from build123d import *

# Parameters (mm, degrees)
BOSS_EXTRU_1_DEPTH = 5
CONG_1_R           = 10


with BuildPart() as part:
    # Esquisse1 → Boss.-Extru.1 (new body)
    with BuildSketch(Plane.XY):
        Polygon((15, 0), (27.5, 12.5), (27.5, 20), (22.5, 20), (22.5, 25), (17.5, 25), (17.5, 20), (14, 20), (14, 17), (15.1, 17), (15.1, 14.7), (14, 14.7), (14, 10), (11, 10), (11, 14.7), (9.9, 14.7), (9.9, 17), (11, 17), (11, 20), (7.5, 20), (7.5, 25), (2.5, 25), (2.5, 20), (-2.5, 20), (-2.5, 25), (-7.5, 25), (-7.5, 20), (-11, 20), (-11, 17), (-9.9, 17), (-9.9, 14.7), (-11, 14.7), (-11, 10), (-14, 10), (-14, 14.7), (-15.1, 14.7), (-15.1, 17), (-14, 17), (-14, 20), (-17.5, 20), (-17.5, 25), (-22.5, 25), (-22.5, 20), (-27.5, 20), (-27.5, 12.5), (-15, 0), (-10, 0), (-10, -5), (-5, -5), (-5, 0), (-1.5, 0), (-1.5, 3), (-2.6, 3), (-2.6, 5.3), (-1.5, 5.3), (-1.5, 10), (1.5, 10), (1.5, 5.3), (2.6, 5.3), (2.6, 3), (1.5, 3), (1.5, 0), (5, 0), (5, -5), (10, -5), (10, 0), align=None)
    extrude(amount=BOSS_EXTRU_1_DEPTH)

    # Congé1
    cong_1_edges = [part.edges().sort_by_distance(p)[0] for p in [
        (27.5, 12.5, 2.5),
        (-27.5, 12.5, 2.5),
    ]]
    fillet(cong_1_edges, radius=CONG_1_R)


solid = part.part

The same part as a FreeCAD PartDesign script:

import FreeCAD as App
import Part
import Sketcher
Q = App.Units.Quantity


def edges_at(feature, points):
    """Names of the edges that pass closest to the given points."""
    edges = feature.Shape.Edges
    near = lambda p: min(range(len(edges)), key=lambda i: edges[i].distToShape(Part.Vertex(*p))[0])
    return sorted({f"Edge{near(p) + 1}" for p in points})

doc = App.newDocument("Part")
body = doc.addObject("PartDesign::Body", "Body")

sketch1 = doc.addObject("Sketcher::SketchObject", "Sketch")
body.addObject(sketch1)
sketch1.AttachmentSupport = (doc.XY_Plane, [""])
sketch1.MapMode = "FlatFace"
sketch1.addGeometry([
    Part.LineSegment(App.Vector(15, 0, 0), App.Vector(27.5, 12.5, 0)),
    Part.LineSegment(App.Vector(27.5, 12.5, 0), App.Vector(27.5, 20, 0)),
    Part.LineSegment(App.Vector(27.5, 20, 0), App.Vector(22.5, 20, 0)),
    Part.LineSegment(App.Vector(22.5, 20, 0), App.Vector(22.5, 25, 0)),
    Part.LineSegment(App.Vector(22.5, 25, 0), App.Vector(17.5, 25, 0)),
    Part.LineSegment(App.Vector(17.5, 25, 0), App.Vector(17.5, 20, 0)),
    Part.LineSegment(App.Vector(17.5, 20, 0), App.Vector(14, 20, 0)),
    Part.LineSegment(App.Vector(14, 20, 0), App.Vector(14, 17, 0)),
    Part.LineSegment(App.Vector(14, 17, 0), App.Vector(15.1, 17, 0)),
    Part.LineSegment(App.Vector(15.1, 17, 0), App.Vector(15.1, 14.7, 0)),
    Part.LineSegment(App.Vector(15.1, 14.7, 0), App.Vector(14, 14.7, 0)),
    Part.LineSegment(App.Vector(14, 14.7, 0), App.Vector(14, 10, 0)),
    Part.LineSegment(App.Vector(14, 10, 0), App.Vector(11, 10, 0)),
    Part.LineSegment(App.Vector(11, 10, 0), App.Vector(11, 14.7, 0)),
    Part.LineSegment(App.Vector(11, 14.7, 0), App.Vector(9.9, 14.7, 0)),
    Part.LineSegment(App.Vector(9.9, 14.7, 0), App.Vector(9.9, 17, 0)),
    Part.LineSegment(App.Vector(9.9, 17, 0), App.Vector(11, 17, 0)),
    Part.LineSegment(App.Vector(11, 17, 0), App.Vector(11, 20, 0)),
    Part.LineSegment(App.Vector(11, 20, 0), App.Vector(7.5, 20, 0)),
    Part.LineSegment(App.Vector(7.5, 20, 0), App.Vector(7.5, 25, 0)),
    Part.LineSegment(App.Vector(7.5, 25, 0), App.Vector(2.5, 25, 0)),
    Part.LineSegment(App.Vector(2.5, 25, 0), App.Vector(2.5, 20, 0)),
    Part.LineSegment(App.Vector(2.5, 20, 0), App.Vector(-2.5, 20, 0)),
    Part.LineSegment(App.Vector(-2.5, 20, 0), App.Vector(-2.5, 25, 0)),
    Part.LineSegment(App.Vector(-2.5, 25, 0), App.Vector(-7.5, 25, 0)),
    Part.LineSegment(App.Vector(-7.5, 25, 0), App.Vector(-7.5, 20, 0)),
    Part.LineSegment(App.Vector(-7.5, 20, 0), App.Vector(-11, 20, 0)),
    Part.LineSegment(App.Vector(-11, 20, 0), App.Vector(-11, 17, 0)),
    Part.LineSegment(App.Vector(-11, 17, 0), App.Vector(-9.9, 17, 0)),
    Part.LineSegment(App.Vector(-9.9, 17, 0), App.Vector(-9.9, 14.7, 0)),
    Part.LineSegment(App.Vector(-9.9, 14.7, 0), App.Vector(-11, 14.7, 0)),
    Part.LineSegment(App.Vector(-11, 14.7, 0), App.Vector(-11, 10, 0)),
    Part.LineSegment(App.Vector(-11, 10, 0), App.Vector(-14, 10, 0)),
    Part.LineSegment(App.Vector(-14, 10, 0), App.Vector(-14, 14.7, 0)),
    Part.LineSegment(App.Vector(-14, 14.7, 0), App.Vector(-15.1, 14.7, 0)),
    Part.LineSegment(App.Vector(-15.1, 14.7, 0), App.Vector(-15.1, 17, 0)),
    Part.LineSegment(App.Vector(-15.1, 17, 0), App.Vector(-14, 17, 0)),
    Part.LineSegment(App.Vector(-14, 17, 0), App.Vector(-14, 20, 0)),
    Part.LineSegment(App.Vector(-14, 20, 0), App.Vector(-17.5, 20, 0)),
    Part.LineSegment(App.Vector(-17.5, 20, 0), App.Vector(-17.5, 25, 0)),
    Part.LineSegment(App.Vector(-17.5, 25, 0), App.Vector(-22.5, 25, 0)),
    Part.LineSegment(App.Vector(-22.5, 25, 0), App.Vector(-22.5, 20, 0)),
    Part.LineSegment(App.Vector(-22.5, 20, 0), App.Vector(-27.5, 20, 0)),
    Part.LineSegment(App.Vector(-27.5, 20, 0), App.Vector(-27.5, 12.5, 0)),
    Part.LineSegment(App.Vector(-27.5, 12.5, 0), App.Vector(-15, 0, 0)),
    Part.LineSegment(App.Vector(-15, 0, 0), App.Vector(-10, 0, 0)),
    Part.LineSegment(App.Vector(-10, 0, 0), App.Vector(-10, -5, 0)),
    Part.LineSegment(App.Vector(-10, -5, 0), App.Vector(-5, -5, 0)),
    Part.LineSegment(App.Vector(-5, -5, 0), App.Vector(-5, 0, 0)),
    Part.LineSegment(App.Vector(-5, 0, 0), App.Vector(-1.5, 0, 0)),
    Part.LineSegment(App.Vector(-1.5, 0, 0), App.Vector(-1.5, 3, 0)),
    Part.LineSegment(App.Vector(-1.5, 3, 0), App.Vector(-2.6, 3, 0)),
    Part.LineSegment(App.Vector(-2.6, 3, 0), App.Vector(-2.6, 5.3, 0)),
    Part.LineSegment(App.Vector(-2.6, 5.3, 0), App.Vector(-1.5, 5.3, 0)),
    Part.LineSegment(App.Vector(-1.5, 5.3, 0), App.Vector(-1.5, 10, 0)),
    Part.LineSegment(App.Vector(-1.5, 10, 0), App.Vector(1.5, 10, 0)),
    Part.LineSegment(App.Vector(1.5, 10, 0), App.Vector(1.5, 5.3, 0)),
    Part.LineSegment(App.Vector(1.5, 5.3, 0), App.Vector(2.6, 5.3, 0)),
    Part.LineSegment(App.Vector(2.6, 5.3, 0), App.Vector(2.6, 3, 0)),
    Part.LineSegment(App.Vector(2.6, 3, 0), App.Vector(1.5, 3, 0)),
    Part.LineSegment(App.Vector(1.5, 3, 0), App.Vector(1.5, 0, 0)),
    Part.LineSegment(App.Vector(1.5, 0, 0), App.Vector(5, 0, 0)),
    Part.LineSegment(App.Vector(5, 0, 0), App.Vector(5, -5, 0)),
    Part.LineSegment(App.Vector(5, -5, 0), App.Vector(10, -5, 0)),
    Part.LineSegment(App.Vector(10, -5, 0), App.Vector(10, 0, 0)),
    Part.LineSegment(App.Vector(10, 0, 0), App.Vector(15, 0, 0)),
], False)
sketch1.addConstraint([
    Sketcher.Constraint("Coincident", 0, 2, 1, 1),
    Sketcher.Constraint("Coincident", 1, 2, 2, 1),
    Sketcher.Constraint("Coincident", 2, 2, 3, 1),
    Sketcher.Constraint("Coincident", 3, 2, 4, 1),
    Sketcher.Constraint("Coincident", 4, 2, 5, 1),
    Sketcher.Constraint("Coincident", 5, 2, 6, 1),
    Sketcher.Constraint("Coincident", 6, 2, 7, 1),
    Sketcher.Constraint("Coincident", 7, 2, 8, 1),
    Sketcher.Constraint("Coincident", 8, 2, 9, 1),
    Sketcher.Constraint("Coincident", 9, 2, 10, 1),
    Sketcher.Constraint("Coincident", 10, 2, 11, 1),
    Sketcher.Constraint("Coincident", 11, 2, 12, 1),
    Sketcher.Constraint("Coincident", 12, 2, 13, 1),
    Sketcher.Constraint("Coincident", 13, 2, 14, 1),
    Sketcher.Constraint("Coincident", 14, 2, 15, 1),
    Sketcher.Constraint("Coincident", 15, 2, 16, 1),
    Sketcher.Constraint("Coincident", 16, 2, 17, 1),
    Sketcher.Constraint("Coincident", 17, 2, 18, 1),
    Sketcher.Constraint("Coincident", 18, 2, 19, 1),
    Sketcher.Constraint("Coincident", 19, 2, 20, 1),
    Sketcher.Constraint("Coincident", 20, 2, 21, 1),
    Sketcher.Constraint("Coincident", 21, 2, 22, 1),
    Sketcher.Constraint("Coincident", 22, 2, 23, 1),
    Sketcher.Constraint("Coincident", 23, 2, 24, 1),
    Sketcher.Constraint("Coincident", 24, 2, 25, 1),
    Sketcher.Constraint("Coincident", 25, 2, 26, 1),
    Sketcher.Constraint("Coincident", 26, 2, 27, 1),
    Sketcher.Constraint("Coincident", 27, 2, 28, 1),
    Sketcher.Constraint("Coincident", 28, 2, 29, 1),
    Sketcher.Constraint("Coincident", 29, 2, 30, 1),
    Sketcher.Constraint("Coincident", 30, 2, 31, 1),
    Sketcher.Constraint("Coincident", 31, 2, 32, 1),
    Sketcher.Constraint("Coincident", 32, 2, 33, 1),
    Sketcher.Constraint("Coincident", 33, 2, 34, 1),
    Sketcher.Constraint("Coincident", 34, 2, 35, 1),
    Sketcher.Constraint("Coincident", 35, 2, 36, 1),
    Sketcher.Constraint("Coincident", 36, 2, 37, 1),
    Sketcher.Constraint("Coincident", 37, 2, 38, 1),
    Sketcher.Constraint("Coincident", 38, 2, 39, 1),
    Sketcher.Constraint("Coincident", 39, 2, 40, 1),
    Sketcher.Constraint("Coincident", 40, 2, 41, 1),
    Sketcher.Constraint("Coincident", 41, 2, 42, 1),
    Sketcher.Constraint("Coincident", 42, 2, 43, 1),
    Sketcher.Constraint("Coincident", 43, 2, 44, 1),
    Sketcher.Constraint("Coincident", 44, 2, 45, 1),
    Sketcher.Constraint("Coincident", 45, 2, 46, 1),
    Sketcher.Constraint("Coincident", 46, 2, 47, 1),
    Sketcher.Constraint("Coincident", 47, 2, 48, 1),
    Sketcher.Constraint("Coincident", 48, 2, 49, 1),
    Sketcher.Constraint("Coincident", 49, 2, 50, 1),
    Sketcher.Constraint("Coincident", 50, 2, 51, 1),
    Sketcher.Constraint("Coincident", 51, 2, 52, 1),
    Sketcher.Constraint("Coincident", 52, 2, 53, 1),
    Sketcher.Constraint("Coincident", 53, 2, 54, 1),
    Sketcher.Constraint("Coincident", 54, 2, 55, 1),
    Sketcher.Constraint("Coincident", 55, 2, 56, 1),
    Sketcher.Constraint("Coincident", 56, 2, 57, 1),
    Sketcher.Constraint("Coincident", 57, 2, 58, 1),
    Sketcher.Constraint("Coincident", 58, 2, 59, 1),
    Sketcher.Constraint("Coincident", 59, 2, 60, 1),
    Sketcher.Constraint("Coincident", 60, 2, 61, 1),
    Sketcher.Constraint("Coincident", 61, 2, 62, 1),
    Sketcher.Constraint("Coincident", 62, 2, 63, 1),
    Sketcher.Constraint("Coincident", 63, 2, 64, 1),
    Sketcher.Constraint("Coincident", 64, 2, 65, 1),
    Sketcher.Constraint("Coincident", 65, 2, 0, 1),
    Sketcher.Constraint("Vertical", 1),
    Sketcher.Constraint("Horizontal", 2),
    Sketcher.Constraint("Vertical", 3),
    Sketcher.Constraint("Horizontal", 4),
    Sketcher.Constraint("Vertical", 5),
    Sketcher.Constraint("Horizontal", 6),
    Sketcher.Constraint("Vertical", 7),
    Sketcher.Constraint("Horizontal", 8),
    Sketcher.Constraint("Vertical", 9),
    Sketcher.Constraint("Horizontal", 10),
    Sketcher.Constraint("Vertical", 11),
    Sketcher.Constraint("Horizontal", 12),
    Sketcher.Constraint("Vertical", 13),
    Sketcher.Constraint("Horizontal", 14),
    Sketcher.Constraint("Vertical", 15),
    Sketcher.Constraint("Horizontal", 16),
    Sketcher.Constraint("Vertical", 17),
    Sketcher.Constraint("Horizontal", 18),
    Sketcher.Constraint("Vertical", 19),
    Sketcher.Constraint("Horizontal", 20),
    Sketcher.Constraint("Vertical", 21),
    Sketcher.Constraint("Horizontal", 22),
    Sketcher.Constraint("Vertical", 23),
    Sketcher.Constraint("Horizontal", 24),
    Sketcher.Constraint("Vertical", 25),
    Sketcher.Constraint("Horizontal", 26),
    Sketcher.Constraint("Vertical", 27),
    Sketcher.Constraint("Horizontal", 28),
    Sketcher.Constraint("Vertical", 29),
    Sketcher.Constraint("Horizontal", 30),
    Sketcher.Constraint("Vertical", 31),
    Sketcher.Constraint("Horizontal", 32),
    Sketcher.Constraint("Vertical", 33),
    Sketcher.Constraint("Horizontal", 34),
    Sketcher.Constraint("Vertical", 35),
    Sketcher.Constraint("Horizontal", 36),
    Sketcher.Constraint("Vertical", 37),
    Sketcher.Constraint("Horizontal", 38),
    Sketcher.Constraint("Vertical", 39),
    Sketcher.Constraint("Horizontal", 40),
    Sketcher.Constraint("Vertical", 41),
    Sketcher.Constraint("Horizontal", 42),
    Sketcher.Constraint("Vertical", 43),
    Sketcher.Constraint("Horizontal", 45),
    Sketcher.Constraint("Vertical", 46),
    Sketcher.Constraint("Horizontal", 47),
    Sketcher.Constraint("Vertical", 48),
    Sketcher.Constraint("Horizontal", 49),
    Sketcher.Constraint("Vertical", 50),
    Sketcher.Constraint("Horizontal", 51),
    Sketcher.Constraint("Vertical", 52),
    Sketcher.Constraint("Horizontal", 53),
    Sketcher.Constraint("Vertical", 54),
    Sketcher.Constraint("Horizontal", 55),
    Sketcher.Constraint("Vertical", 56),
    Sketcher.Constraint("Horizontal", 57),
    Sketcher.Constraint("Vertical", 58),
    Sketcher.Constraint("Horizontal", 59),
    Sketcher.Constraint("Vertical", 60),
    Sketcher.Constraint("Horizontal", 61),
    Sketcher.Constraint("Vertical", 62),
    Sketcher.Constraint("Horizontal", 63),
    Sketcher.Constraint("Vertical", 64),
    Sketcher.Constraint("Horizontal", 65),
    Sketcher.Constraint("Symmetric", 49, 2, 60, 2, -1, 1),
    Sketcher.Constraint("Symmetric", 45, 2, 64, 2, -1, 1),
    Sketcher.Constraint("Symmetric", 20, 2, 23, 2, -2),
    Sketcher.Constraint("Symmetric", 18, 2, 25, 2, -2),
    Sketcher.Constraint("Symmetric", 16, 2, 27, 2, -2),
    Sketcher.Constraint("Symmetric", 14, 2, 29, 2, -2),
    Sketcher.Constraint("Symmetric", 12, 2, 31, 2, -2),
    Sketcher.Constraint("Symmetric", 10, 2, 33, 2, -2),
    Sketcher.Constraint("Symmetric", 8, 2, 35, 2, -2),
    Sketcher.Constraint("Symmetric", 6, 2, 37, 2, -2),
    Sketcher.Constraint("Symmetric", 4, 2, 39, 2, -2),
    Sketcher.Constraint("Symmetric", 2, 2, 41, 2, -2),
    Sketcher.Constraint("Symmetric", 0, 2, 43, 2, -2),
    Sketcher.Constraint("Symmetric", 53, 2, 56, 2, -2),
    Sketcher.Constraint("Symmetric", 51, 2, 58, 2, -2),
    Sketcher.Constraint("Symmetric", 48, 2, 61, 2, -2),
    Sketcher.Constraint("Symmetric", 44, 2, 65, 2, -2),
    Sketcher.Constraint("Perpendicular", 0, 44),
    Sketcher.Constraint("Horizontal", 2, 2, 5, 2),
    Sketcher.Constraint("Horizontal", 10, 2, 13, 2),
    Sketcher.Constraint("Horizontal", 8, 2, 15, 2),
    Sketcher.Constraint("Horizontal", 6, 2, 17, 2),
    Sketcher.Constraint("Horizontal", 4, 2, 19, 2),
    Sketcher.Constraint("Horizontal", 18, 2, 21, 2),
    Sketcher.Constraint("Horizontal", 32, 2, 54, 2),
    Sketcher.Constraint("Horizontal", 47, 2, 62, 2),
    Sketcher.Constraint("Vertical", 7, 2, 10, 2),
    Sketcher.Constraint("Vertical", 13, 2, 16, 2),
    Sketcher.Constraint("Vertical", 50, 2, 53, 2),
    Sketcher.Constraint("Equal", 2, 4),
    Sketcher.Constraint("Equal", 10, 14),
    Sketcher.Constraint("Equal", 6, 18),
    Sketcher.Constraint("Equal", 4, 20),
    Sketcher.Constraint("Equal", 20, 22),
    Sketcher.Constraint("Equal", 42, 45),
    Sketcher.Constraint("Equal", 45, 47),
    Sketcher.Constraint("Equal", 38, 49),
    Sketcher.Constraint("Equal", 36, 51),
    Sketcher.Constraint("Equal", 32, 55),
    Sketcher.Constraint("Equal", 65, 3),
    Sketcher.Constraint("Equal", 55, 7),
    Sketcher.Constraint("Equal", 41, 46),
    Sketcher.Constraint("Equal", 37, 50),
    Sketcher.Constraint("Equal", 35, 52),
    Sketcher.Constraint("Equal", 33, 54),
    Sketcher.Constraint("DistanceX", 2, 2, 2, 1, Q("5 mm")),
    Sketcher.Constraint("DistanceX", 12, 2, 12, 1, Q("3 mm")),
    Sketcher.Constraint("DistanceX", 6, 2, 6, 1, Q("3.5 mm")),
    Sketcher.Constraint("DistanceX", 8, 1, 8, 2, Q("1.1 mm")),
    Sketcher.Constraint("DistanceY", 1, 1, 1, 2, Q("7.5 mm")),
    Sketcher.Constraint("DistanceY", 9, 2, 9, 1, Q("2.3 mm")),
])
pad1 = doc.addObject("PartDesign::Pad", "Pad")
body.addObject(pad1)
pad1.Profile = sketch1
pad1.Length = 5
doc.recompute()

fillet = doc.addObject("PartDesign::Fillet", "Fillet")
body.addObject(fillet)
fillet.Base = (pad1, edges_at(pad1, [(27.5, 12.5, 2.5), (-27.5, 12.5, 2.5)]))
fillet.Radius = 10

doc.recompute()
